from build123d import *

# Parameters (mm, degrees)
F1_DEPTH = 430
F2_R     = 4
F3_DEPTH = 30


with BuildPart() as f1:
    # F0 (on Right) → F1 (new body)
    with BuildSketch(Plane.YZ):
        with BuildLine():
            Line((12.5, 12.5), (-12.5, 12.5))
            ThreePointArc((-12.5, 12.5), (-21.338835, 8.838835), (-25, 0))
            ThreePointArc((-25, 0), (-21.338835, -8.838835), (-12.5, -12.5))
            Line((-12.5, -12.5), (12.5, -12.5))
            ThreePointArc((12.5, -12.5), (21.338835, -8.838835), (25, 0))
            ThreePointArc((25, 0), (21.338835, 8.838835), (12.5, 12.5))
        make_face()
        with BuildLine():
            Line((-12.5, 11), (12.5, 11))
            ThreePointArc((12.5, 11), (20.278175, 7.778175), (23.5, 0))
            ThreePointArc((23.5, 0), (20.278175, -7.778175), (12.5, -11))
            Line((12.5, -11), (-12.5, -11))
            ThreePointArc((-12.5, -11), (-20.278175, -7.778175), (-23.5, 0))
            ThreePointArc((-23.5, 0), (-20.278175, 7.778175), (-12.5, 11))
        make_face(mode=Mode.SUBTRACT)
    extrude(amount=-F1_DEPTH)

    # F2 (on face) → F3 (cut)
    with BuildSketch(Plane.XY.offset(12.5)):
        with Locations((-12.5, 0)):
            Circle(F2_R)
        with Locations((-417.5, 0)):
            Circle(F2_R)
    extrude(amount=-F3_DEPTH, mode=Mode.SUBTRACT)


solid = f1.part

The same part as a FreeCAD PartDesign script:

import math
import FreeCAD as App
import Part
import Sketcher

V = App.Vector
Q = App.Units.Quantity

doc = App.newDocument("Part")
body = doc.addObject("PartDesign::Body", "Body")

sketch1 = body.newObject("Sketcher::SketchObject", "Sketch")
sketch1.AttachmentSupport = (doc.getObject("YZ_Plane"), [""])
sketch1.MapMode = "FlatFace"
sketch1.addGeometry([
    Part.LineSegment(V(12, 12, 0), V(-12, 12, 0)),
    Part.ArcOfCircle(Part.Circle(V(-13, 0, 0), V(0, 0, 1), 12), math.radians(90), math.radians(180)),
    Part.ArcOfCircle(Part.Circle(V(-13, 0, 0), V(0, 0, 1), 12), math.radians(180), math.radians(270)),
    Part.LineSegment(V(-12, -12, 0), V(12, -12, 0)),
    Part.ArcOfCircle(Part.Circle(V(13, 0, 0), V(0, 0, 1), 12), math.radians(-90), math.radians(0)),
    Part.ArcOfCircle(Part.Circle(V(13, 0, 0), V(0, 0, 1), 12), math.radians(0), math.radians(90)),
    Part.ArcOfCircle(Part.Circle(V(-13, 0, 0), V(0, 0, 1), 11), math.radians(90), math.radians(180)),
    Part.LineSegment(V(-12, 11, 0), V(12, 11, 0)),
    Part.ArcOfCircle(Part.Circle(V(13, 0, 0), V(0, 0, 1), 11), math.radians(0), math.radians(90)),
    Part.ArcOfCircle(Part.Circle(V(13, 0, 0), V(0, 0, 1), 11), math.radians(-90), math.radians(0)),
    Part.LineSegment(V(12, -11, 0), V(-12, -11, 0)),
    Part.ArcOfCircle(Part.Circle(V(-13, 0, 0), V(0, 0, 1), 11), math.radians(180), math.radians(270)),
], False)
sketch1.addConstraint([
    Sketcher.Constraint("Tangent", 0, 2, 1, 1),
    Sketcher.Constraint("Tangent", 1, 2, 2, 1),
    Sketcher.Constraint("Tangent", 2, 2, 3, 1),
    Sketcher.Constraint("Tangent", 3, 2, 4, 1),
    Sketcher.Constraint("Tangent", 4, 2, 5, 1),
    Sketcher.Constraint("Tangent", 5, 2, 0, 1),
    Sketcher.Constraint("Tangent", 6, 1, 7, 1),
    Sketcher.Constraint("Tangent", 7, 2, 8, 2),
    Sketcher.Constraint("Tangent", 8, 1, 9, 2),
    Sketcher.Constraint("Tangent", 9, 1, 10, 1),
    Sketcher.Constraint("Tangent", 10, 2, 11, 2),
    Sketcher.Constraint("Tangent", 11, 1, 6, 2),
    Sketcher.Constraint("Horizontal", 0),
    Sketcher.Constraint("Horizontal", 3),
    Sketcher.Constraint("Horizontal", 7),
    Sketcher.Constraint("Horizontal", 10),
    Sketcher.Constraint("Coincident", 6, 3, 1, 3),
    Sketcher.Constraint("Coincident", 8, 3, 4, 3),
    Sketcher.Constraint("Equal", 1, 2),
    Sketcher.Constraint("Equal", 2, 4),
    Sketcher.Constraint("Equal", 8, 9),
    Sketcher.Constraint("Symmetric", 1, 3, 4, 3, -1, 1),
    Sketcher.Constraint("PointOnObject", 1, 2, -1),
    Sketcher.Constraint("PointOnObject", 4, 2, -1),
    Sketcher.Constraint("PointOnObject", 8, 1, -1),
    Sketcher.Constraint("PointOnObject", 11, 1, -1),
    Sketcher.Constraint("Radius", 6, Q("10.999999 mm")),
    Sketcher.Constraint("Radius", 1, Q("12.499999 mm")),
    Sketcher.Constraint("DistanceX", 0, 2, 0, 1, Q("25 mm")),
])
pad1 = body.newObject("PartDesign::Pad", "Pad")
pad1.Profile = sketch1
pad1.Length = 430
pad1.Reversed = True

sketch2 = body.newObject("Sketcher::SketchObject", "Sketch001")
sketch2.AttachmentSupport = (doc.getObject("XY_Plane"), [""])
sketch2.MapMode = "FlatFace"
sketch2.AttachmentOffset = App.Placement(V(0, 0, 12.5), App.Rotation())
sketch2.addGeometry([
    Part.Circle(V(-12.5, 0, 0), V(0, 0, 1), 4),
    Part.Circle(V(-417.5, 0, 0), V(0, 0, 1), 4),
], False)
sketch2.addConstraint([
    Sketcher.Constraint("Equal", 0, 1),
    Sketcher.Constraint("PointOnObject", 0, 3, -1),
    Sketcher.Constraint("PointOnObject", 1, 3, -1),
    Sketcher.Constraint("Diameter", 0, Q("8 mm")),
    Sketcher.Constraint("DistanceX", 1, 3, 0, 3, Q("405 mm")),
    Sketcher.Constraint("DistanceX", 0, 3, -1, 1, Q("12.5 mm")),
])
pocket1 = body.newObject("PartDesign::Pocket", "Pocket")
pocket1.Profile = sketch2
pocket1.Length = 30

doc.recompute()
